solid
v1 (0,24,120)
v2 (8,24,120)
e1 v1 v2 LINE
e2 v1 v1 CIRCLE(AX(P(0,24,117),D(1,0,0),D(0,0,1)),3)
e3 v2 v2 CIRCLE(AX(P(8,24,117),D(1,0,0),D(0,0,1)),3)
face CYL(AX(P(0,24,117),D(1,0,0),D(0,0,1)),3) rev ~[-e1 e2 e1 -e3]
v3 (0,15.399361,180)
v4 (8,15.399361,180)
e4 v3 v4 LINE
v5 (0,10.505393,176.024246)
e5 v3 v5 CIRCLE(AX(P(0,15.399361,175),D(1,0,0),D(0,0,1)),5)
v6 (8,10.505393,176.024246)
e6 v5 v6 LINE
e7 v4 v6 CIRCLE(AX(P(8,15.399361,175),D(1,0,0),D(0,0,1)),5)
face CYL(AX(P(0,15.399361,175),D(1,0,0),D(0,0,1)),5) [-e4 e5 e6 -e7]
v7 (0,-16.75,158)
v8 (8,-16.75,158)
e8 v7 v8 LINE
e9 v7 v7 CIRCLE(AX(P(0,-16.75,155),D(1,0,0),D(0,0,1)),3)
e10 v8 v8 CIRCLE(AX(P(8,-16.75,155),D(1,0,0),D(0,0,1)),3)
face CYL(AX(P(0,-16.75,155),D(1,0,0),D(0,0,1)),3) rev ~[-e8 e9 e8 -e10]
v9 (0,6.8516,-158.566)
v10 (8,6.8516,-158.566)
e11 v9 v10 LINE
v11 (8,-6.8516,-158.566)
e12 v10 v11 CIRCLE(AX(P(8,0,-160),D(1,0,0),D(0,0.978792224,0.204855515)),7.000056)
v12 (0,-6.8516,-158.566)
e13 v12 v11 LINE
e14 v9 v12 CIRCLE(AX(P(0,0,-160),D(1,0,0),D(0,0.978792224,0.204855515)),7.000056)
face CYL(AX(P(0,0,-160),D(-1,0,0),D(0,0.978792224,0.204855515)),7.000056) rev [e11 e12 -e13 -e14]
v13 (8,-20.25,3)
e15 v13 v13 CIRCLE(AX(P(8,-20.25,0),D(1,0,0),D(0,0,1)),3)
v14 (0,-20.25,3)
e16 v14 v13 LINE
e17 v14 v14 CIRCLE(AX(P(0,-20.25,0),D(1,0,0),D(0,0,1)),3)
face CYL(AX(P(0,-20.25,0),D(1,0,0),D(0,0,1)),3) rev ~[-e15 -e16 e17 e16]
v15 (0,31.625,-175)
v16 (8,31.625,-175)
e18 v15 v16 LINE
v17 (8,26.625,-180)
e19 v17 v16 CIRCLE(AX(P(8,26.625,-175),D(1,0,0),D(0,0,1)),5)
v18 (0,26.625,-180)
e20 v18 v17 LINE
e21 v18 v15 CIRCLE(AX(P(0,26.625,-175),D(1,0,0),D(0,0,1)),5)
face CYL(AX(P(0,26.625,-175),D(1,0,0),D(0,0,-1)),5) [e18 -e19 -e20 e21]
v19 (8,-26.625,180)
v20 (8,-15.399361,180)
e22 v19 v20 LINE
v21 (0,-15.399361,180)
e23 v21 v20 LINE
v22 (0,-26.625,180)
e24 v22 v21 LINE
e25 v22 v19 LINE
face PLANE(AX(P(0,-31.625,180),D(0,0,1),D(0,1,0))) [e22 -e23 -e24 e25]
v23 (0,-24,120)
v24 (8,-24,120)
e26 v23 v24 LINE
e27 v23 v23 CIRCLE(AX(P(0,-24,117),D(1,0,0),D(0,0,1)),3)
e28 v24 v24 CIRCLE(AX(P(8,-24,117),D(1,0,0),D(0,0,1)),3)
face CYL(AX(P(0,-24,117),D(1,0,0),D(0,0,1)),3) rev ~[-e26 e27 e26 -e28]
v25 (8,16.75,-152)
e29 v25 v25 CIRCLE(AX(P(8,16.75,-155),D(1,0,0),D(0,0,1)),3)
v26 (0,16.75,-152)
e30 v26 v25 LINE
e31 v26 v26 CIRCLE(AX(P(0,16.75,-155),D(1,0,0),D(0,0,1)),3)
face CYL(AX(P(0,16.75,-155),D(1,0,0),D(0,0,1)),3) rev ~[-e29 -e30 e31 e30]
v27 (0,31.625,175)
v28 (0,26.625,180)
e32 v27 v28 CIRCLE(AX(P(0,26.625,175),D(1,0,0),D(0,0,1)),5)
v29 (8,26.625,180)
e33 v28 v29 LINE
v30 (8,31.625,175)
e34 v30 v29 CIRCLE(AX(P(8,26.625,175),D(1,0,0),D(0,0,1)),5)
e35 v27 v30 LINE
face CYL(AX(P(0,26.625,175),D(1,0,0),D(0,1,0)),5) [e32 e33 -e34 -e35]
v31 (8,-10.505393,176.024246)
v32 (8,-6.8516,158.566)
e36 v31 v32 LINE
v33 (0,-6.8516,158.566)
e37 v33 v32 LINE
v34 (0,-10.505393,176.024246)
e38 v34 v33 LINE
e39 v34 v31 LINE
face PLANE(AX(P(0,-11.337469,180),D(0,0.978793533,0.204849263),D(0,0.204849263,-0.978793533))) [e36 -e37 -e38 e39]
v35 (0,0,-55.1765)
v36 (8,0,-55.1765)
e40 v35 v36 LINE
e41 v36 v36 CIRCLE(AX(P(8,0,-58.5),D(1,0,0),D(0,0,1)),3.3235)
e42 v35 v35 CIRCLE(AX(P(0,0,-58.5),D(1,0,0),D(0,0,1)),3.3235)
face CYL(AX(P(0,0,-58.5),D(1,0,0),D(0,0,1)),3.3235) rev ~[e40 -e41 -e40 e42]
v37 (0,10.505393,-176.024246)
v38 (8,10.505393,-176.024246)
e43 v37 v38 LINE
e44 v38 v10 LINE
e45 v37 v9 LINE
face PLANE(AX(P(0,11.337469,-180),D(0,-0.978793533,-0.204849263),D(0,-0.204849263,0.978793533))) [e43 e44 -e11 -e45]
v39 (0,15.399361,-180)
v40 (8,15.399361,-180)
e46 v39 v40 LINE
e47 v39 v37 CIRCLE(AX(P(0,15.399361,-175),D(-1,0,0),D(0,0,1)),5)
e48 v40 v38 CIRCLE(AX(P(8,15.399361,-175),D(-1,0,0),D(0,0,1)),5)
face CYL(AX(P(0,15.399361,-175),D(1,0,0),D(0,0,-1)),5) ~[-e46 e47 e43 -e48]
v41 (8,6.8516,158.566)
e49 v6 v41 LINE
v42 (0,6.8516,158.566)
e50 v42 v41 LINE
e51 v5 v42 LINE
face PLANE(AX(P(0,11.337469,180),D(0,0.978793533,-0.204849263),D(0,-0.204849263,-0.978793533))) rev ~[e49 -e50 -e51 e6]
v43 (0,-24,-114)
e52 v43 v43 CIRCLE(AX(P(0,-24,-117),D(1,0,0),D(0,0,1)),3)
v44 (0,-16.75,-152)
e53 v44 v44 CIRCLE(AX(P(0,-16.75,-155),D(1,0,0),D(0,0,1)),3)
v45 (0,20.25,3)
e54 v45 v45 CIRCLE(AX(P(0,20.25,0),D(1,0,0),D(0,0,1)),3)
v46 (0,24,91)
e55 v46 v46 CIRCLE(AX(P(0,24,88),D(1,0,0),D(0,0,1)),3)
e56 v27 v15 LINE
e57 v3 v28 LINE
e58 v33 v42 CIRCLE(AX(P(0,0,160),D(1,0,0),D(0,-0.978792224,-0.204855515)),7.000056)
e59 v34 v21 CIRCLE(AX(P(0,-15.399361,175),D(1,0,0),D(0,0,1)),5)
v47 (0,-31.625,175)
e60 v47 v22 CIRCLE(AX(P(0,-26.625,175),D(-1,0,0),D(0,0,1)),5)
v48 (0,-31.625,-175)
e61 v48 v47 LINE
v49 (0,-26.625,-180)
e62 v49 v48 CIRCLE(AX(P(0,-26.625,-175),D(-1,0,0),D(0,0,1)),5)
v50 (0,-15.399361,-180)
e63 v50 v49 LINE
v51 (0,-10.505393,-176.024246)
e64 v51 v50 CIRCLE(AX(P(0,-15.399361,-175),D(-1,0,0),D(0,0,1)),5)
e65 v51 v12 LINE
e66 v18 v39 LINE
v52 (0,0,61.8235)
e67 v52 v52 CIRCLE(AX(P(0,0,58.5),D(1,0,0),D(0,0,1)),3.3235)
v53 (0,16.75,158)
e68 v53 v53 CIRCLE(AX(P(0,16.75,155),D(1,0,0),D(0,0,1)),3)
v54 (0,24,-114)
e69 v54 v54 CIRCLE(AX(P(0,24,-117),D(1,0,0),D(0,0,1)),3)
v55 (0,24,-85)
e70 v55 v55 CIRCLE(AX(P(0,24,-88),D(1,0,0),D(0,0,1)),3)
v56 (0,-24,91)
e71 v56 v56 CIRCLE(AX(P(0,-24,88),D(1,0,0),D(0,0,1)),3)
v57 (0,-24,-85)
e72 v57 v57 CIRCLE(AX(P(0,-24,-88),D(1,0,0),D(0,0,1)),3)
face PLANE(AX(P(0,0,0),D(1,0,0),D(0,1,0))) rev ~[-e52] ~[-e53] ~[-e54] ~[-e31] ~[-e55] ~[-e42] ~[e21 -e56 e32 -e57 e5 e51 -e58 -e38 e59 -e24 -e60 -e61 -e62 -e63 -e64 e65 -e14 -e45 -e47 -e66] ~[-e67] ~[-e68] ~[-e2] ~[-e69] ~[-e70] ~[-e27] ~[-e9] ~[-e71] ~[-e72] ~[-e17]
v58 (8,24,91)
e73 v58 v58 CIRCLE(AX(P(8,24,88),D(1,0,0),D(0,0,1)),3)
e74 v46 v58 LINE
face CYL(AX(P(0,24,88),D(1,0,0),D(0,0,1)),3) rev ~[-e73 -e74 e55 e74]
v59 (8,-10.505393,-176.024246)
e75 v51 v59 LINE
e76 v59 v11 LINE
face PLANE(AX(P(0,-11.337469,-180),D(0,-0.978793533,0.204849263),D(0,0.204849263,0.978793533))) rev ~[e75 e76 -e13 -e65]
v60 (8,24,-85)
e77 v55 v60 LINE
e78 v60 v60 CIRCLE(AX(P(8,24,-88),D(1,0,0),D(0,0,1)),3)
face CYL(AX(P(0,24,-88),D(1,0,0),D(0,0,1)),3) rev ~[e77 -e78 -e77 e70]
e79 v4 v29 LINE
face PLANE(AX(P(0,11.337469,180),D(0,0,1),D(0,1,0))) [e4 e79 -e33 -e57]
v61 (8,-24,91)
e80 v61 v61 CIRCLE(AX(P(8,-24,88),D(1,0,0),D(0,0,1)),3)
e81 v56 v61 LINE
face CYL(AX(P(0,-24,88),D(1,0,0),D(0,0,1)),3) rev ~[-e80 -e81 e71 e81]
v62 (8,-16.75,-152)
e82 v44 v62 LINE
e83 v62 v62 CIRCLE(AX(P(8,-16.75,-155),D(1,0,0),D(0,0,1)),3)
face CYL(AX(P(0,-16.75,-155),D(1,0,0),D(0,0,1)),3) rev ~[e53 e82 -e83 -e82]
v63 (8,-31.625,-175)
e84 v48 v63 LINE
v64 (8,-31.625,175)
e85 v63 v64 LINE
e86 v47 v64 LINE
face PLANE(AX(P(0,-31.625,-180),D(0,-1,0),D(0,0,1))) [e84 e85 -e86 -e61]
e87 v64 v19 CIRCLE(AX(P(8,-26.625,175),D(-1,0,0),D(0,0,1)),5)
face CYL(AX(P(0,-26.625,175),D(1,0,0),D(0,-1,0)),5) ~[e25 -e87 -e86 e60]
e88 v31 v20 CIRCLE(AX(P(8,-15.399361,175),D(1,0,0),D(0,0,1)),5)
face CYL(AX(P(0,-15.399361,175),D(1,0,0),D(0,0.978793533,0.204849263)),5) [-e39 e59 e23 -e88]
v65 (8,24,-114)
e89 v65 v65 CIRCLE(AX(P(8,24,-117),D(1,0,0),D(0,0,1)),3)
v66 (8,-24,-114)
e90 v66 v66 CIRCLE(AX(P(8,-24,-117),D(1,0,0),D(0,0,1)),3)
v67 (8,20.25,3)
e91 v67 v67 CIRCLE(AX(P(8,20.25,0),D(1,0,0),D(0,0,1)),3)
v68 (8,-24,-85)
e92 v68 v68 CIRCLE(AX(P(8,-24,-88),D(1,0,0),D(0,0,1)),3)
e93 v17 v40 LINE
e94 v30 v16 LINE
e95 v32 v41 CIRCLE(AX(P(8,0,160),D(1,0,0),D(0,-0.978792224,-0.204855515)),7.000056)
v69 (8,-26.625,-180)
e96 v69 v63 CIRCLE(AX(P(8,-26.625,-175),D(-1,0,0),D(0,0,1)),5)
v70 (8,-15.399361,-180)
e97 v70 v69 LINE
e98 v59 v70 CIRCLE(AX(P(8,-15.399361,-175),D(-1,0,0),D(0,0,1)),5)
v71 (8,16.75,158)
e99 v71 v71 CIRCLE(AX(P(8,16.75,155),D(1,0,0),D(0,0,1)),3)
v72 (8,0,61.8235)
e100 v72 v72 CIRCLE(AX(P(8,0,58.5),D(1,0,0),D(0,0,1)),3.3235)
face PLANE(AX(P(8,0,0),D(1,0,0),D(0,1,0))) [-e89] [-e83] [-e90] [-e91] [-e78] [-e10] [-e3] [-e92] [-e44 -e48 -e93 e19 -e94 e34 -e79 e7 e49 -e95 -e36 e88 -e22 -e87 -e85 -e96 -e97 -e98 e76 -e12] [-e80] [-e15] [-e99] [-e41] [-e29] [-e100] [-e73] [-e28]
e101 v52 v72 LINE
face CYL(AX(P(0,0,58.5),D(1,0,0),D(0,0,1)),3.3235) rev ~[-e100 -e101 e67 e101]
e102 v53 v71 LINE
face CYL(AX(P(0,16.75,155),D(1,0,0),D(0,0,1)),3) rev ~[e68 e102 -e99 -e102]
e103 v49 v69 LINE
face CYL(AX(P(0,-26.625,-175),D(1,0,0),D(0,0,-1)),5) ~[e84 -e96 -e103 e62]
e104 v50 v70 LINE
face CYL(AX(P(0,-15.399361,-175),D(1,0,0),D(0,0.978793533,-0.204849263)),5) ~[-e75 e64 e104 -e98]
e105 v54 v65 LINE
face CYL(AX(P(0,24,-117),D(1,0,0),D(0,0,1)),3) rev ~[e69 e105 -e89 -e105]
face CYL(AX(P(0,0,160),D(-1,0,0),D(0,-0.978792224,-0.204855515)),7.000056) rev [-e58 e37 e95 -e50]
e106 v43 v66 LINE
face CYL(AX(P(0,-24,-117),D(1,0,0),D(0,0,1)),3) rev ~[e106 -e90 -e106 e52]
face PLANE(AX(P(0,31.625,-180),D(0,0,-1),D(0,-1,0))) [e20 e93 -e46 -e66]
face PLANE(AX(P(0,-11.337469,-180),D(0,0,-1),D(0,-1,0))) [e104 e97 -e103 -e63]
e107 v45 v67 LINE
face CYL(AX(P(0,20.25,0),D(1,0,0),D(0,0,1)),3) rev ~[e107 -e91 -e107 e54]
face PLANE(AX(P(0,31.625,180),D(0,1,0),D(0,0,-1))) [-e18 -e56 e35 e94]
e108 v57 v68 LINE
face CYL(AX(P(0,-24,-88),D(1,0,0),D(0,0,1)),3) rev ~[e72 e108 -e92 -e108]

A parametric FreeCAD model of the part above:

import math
import FreeCAD as App
import Part
import Sketcher
from FreeCAD import Vector
Q = App.Units.Quantity


def edges_at(feature, points):
    """Names of the edges that pass closest to the given points."""
    edges = feature.Shape.Edges
    near = lambda p: min(range(len(edges)), key=lambda i: edges[i].distToShape(Part.Vertex(*p))[0])
    return sorted({f"Edge{near(p) + 1}" for p in points})

doc = App.newDocument("Part")
body = doc.addObject("PartDesign::Body", "Body")

# Sketch on YZ plane
sketch1 = body.newObject("Sketcher::SketchObject", "Sketch")
sketch1.AttachmentSupport = (doc.getObject("YZ_Plane"), [""])
sketch1.MapMode = "FlatFace"
sketch1.addGeometry([
    Part.LineSegment(Vector(11.337469, -180, 0), Vector(31.625, -180, 0)),  # 0
    Part.LineSegment(Vector(31.625, -180, 0), Vector(31.625, 180, 0)),  # 1
    Part.LineSegment(Vector(31.625, 180, 0), Vector(11.337469, 180, 0)),  # 2
    Part.LineSegment(Vector(11.337469, 180, 0), Vector(6.8516, 158.566, 0)),  # 3
    Part.ArcOfCircle(Part.Circle(Vector(0, 160, 0), Vector(0, 0, 1), 7.000056), math.radians(-168.178959), math.radians(-11.821041)),  # 4
    Part.LineSegment(Vector(-6.8516, 158.566, 0), Vector(-11.337469, 180, 0)),  # 5
    Part.LineSegment(Vector(-11.337469, 180, 0), Vector(-31.625, 180, 0)),  # 6
    Part.LineSegment(Vector(-31.625, 180, 0), Vector(-31.625, -180, 0)),  # 7
    Part.LineSegment(Vector(-31.625, -180, 0), Vector(-11.337469, -180, 0)),  # 8
    Part.LineSegment(Vector(-11.337469, -180, 0), Vector(-6.8516, -158.566, 0)),  # 9
    Part.ArcOfCircle(Part.Circle(Vector(0, -160, 0), Vector(0, 0, 1), 7.000056), math.radians(11.821041), math.radians(168.178959)),  # 10
    Part.LineSegment(Vector(6.8516, -158.566, 0), Vector(11.337469, -180, 0)),  # 11
], False)
sketch1.addConstraint([
    Sketcher.Constraint("Coincident", 0, 2, 1, 1),
    Sketcher.Constraint("Coincident", 1, 2, 2, 1),
    Sketcher.Constraint("Coincident", 2, 2, 3, 1),
    Sketcher.Constraint("Tangent", 3, 2, 4, 2),
    Sketcher.Constraint("Tangent", 4, 1, 5, 1),
    Sketcher.Constraint("Coincident", 5, 2, 6, 1),
    Sketcher.Constraint("Coincident", 6, 2, 7, 1),
    Sketcher.Constraint("Coincident", 7, 2, 8, 1),
    Sketcher.Constraint("Coincident", 8, 2, 9, 1),
    Sketcher.Constraint("Tangent", 9, 2, 10, 2),
    Sketcher.Constraint("Tangent", 10, 1, 11, 1),
    Sketcher.Constraint("Coincident", 11, 2, 0, 1),
    Sketcher.Constraint("Horizontal", 0),
    Sketcher.Constraint("Vertical", 1),
    Sketcher.Constraint("Horizontal", 2),
    Sketcher.Constraint("Horizontal", 6),
    Sketcher.Constraint("Vertical", 7),
    Sketcher.Constraint("Horizontal", 8),
    Sketcher.Constraint("Equal", 4, 10),
    Sketcher.Constraint("Symmetric", 4, 3, 10, 3, -1, 1),
    Sketcher.Constraint("Symmetric", 0, 2, 6, 2, -1, 1),
    Sketcher.Constraint("Symmetric", 2, 2, 8, 2, -1, 1),
    Sketcher.Constraint("Symmetric", 3, 2, 4, 1, -2),
    Sketcher.Constraint("Symmetric", 8, 2, 11, 2, -2),
    Sketcher.Constraint("Radius", 4, Q("7 mm")),
    Sketcher.Constraint("DistanceY", 1, 1, 1, 2, Q("360 mm")),
    Sketcher.Constraint("DistanceY", 10, 3, 4, 3, Q("320 mm")),
    Sketcher.Constraint("DistanceX", 7, 2, 0, 2, Q("63.25 mm")),
    Sketcher.Constraint("Angle", 3, Q("-101.8207 deg")),
])
pad1 = body.newObject("PartDesign::Pad", "Pad")
pad1.Profile = sketch1
pad1.Length = 8

# Sketch on YZ plane
sketch2 = body.newObject("Sketcher::SketchObject", "Sketch001")
sketch2.AttachmentSupport = (doc.getObject("YZ_Plane"), [""])
sketch2.MapMode = "FlatFace"
sketch2.addGeometry([
    Part.Circle(Vector(-20.25, 0, 0), Vector(0, 0, 1), 3),  # 0
    Part.Circle(Vector(20.25, 0, 0), Vector(0, 0, 1), 3),  # 1
    Part.Circle(Vector(24, -88, 0), Vector(0, 0, 1), 3),  # 2
    Part.Circle(Vector(24, -117, 0), Vector(0, 0, 1), 3),  # 3
    Part.Circle(Vector(16.75, -155, 0), Vector(0, 0, 1), 3),  # 4
    Part.Circle(Vector(-24, -88, 0), Vector(0, 0, 1), 3),  # 5
    Part.Circle(Vector(-24, -117, 0), Vector(0, 0, 1), 3),  # 6
    Part.Circle(Vector(-16.75, -155, 0), Vector(0, 0, 1), 3),  # 7
    Part.Circle(Vector(24, 88, 0), Vector(0, 0, 1), 3),  # 8
    Part.Circle(Vector(24, 117, 0), Vector(0, 0, 1), 3),  # 9
    Part.Circle(Vector(16.75, 155, 0), Vector(0, 0, 1), 3),  # 10
    Part.Circle(Vector(-16.75, 155, 0), Vector(0, 0, 1), 3),  # 11
    Part.Circle(Vector(-24, 117, 0), Vector(0, 0, 1), 3),  # 12
    Part.Circle(Vector(-24, 88, 0), Vector(0, 0, 1), 3),  # 13
    Part.Circle(Vector(0, 160, 0), Vector(0, 0, 1), 3),  # 14
    Part.Circle(Vector(0, -160, 0), Vector(0, 0, 1), 3),  # 15
], False)
sketch2.addConstraint([
    Sketcher.Constraint("Equal", 0, 1),
    Sketcher.Constraint("Equal", 1, 2),
    Sketcher.Constraint("Equal", 2, 3),
    Sketcher.Constraint("Equal", 3, 4),
    Sketcher.Constraint("Equal", 4, 5),
    Sketcher.Constraint("Equal", 5, 6),
    Sketcher.Constraint("Equal", 6, 7),
    Sketcher.Constraint("Equal", 7, 8),
    Sketcher.Constraint("Equal", 8, 9),
    Sketcher.Constraint("Equal", 9, 10),
    Sketcher.Constraint("Equal", 10, 11),
    Sketcher.Constraint("Equal", 11, 12),
    Sketcher.Constraint("Equal", 12, 13),
    Sketcher.Constraint("Equal", 13, 14),
    Sketcher.Constraint("Equal", 14, 15),
    Sketcher.Constraint("Symmetric", 0, 3, 1, 3, -1, 1),
    Sketcher.Constraint("Symmetric", 5, 3, 8, 3, -1, 1),
    Sketcher.Constraint("Symmetric", 6, 3, 9, 3, -1, 1),
    Sketcher.Constraint("Symmetric", 7, 3, 10, 3, -1, 1),
    Sketcher.Constraint("Symmetric", 4, 3, 11, 3, -1, 1),
    Sketcher.Constraint("Symmetric", 3, 3, 12, 3, -1, 1),
    Sketcher.Constraint("Symmetric", 2, 3, 13, 3, -1, 1),
    Sketcher.Constraint("Symmetric", 14, 3, 15, 3, -1, 1),
    Sketcher.Constraint("Symmetric", 2, 3, 5, 3, -2),
    Sketcher.Constraint("Symmetric", 3, 3, 6, 3, -2),
    Sketcher.Constraint("Symmetric", 4, 3, 7, 3, -2),
    Sketcher.Constraint("PointOnObject", 0, 3, -1),
    Sketcher.Constraint("PointOnObject", 14, 3, -2),
    Sketcher.Constraint("Vertical", 2, 3, 3, 3),
    Sketcher.Constraint("Diameter", 0, Q("6 mm")),
    Sketcher.Constraint("DistanceX", -1, 1, 2, 3, Q("24 mm")),
    Sketcher.Constraint("DistanceY", 2, 3, -1, 1, Q("88 mm")),
    Sketcher.Constraint("DistanceY", 3, 3, -1, 1, Q("117 mm")),
    Sketcher.Constraint("DistanceY", 4, 3, -1, 1, Q("155 mm")),
    Sketcher.Constraint("DistanceY", -1, 1, 14, 3, Q("160 mm")),
    Sketcher.Constraint("DistanceX", 0, 3, 4, 3, Q("37 mm")),
    Sketcher.Constraint("DistanceX", 0, 3, 1, 3, Q("40.5 mm")),
])
doc.recompute()
hole = body.newObject("PartDesign::Hole", "Hole")
hole.Profile = sketch2
hole.ThreadType = "None"
hole.Diameter = 6
hole.DepthType = "ThroughAll"
hole.Reversed = True

# Sketch on YZ plane
sketch3 = body.newObject("Sketcher::SketchObject", "Sketch002")
sketch3.AttachmentSupport = (doc.getObject("YZ_Plane"), [""])
sketch3.MapMode = "FlatFace"
sketch3.addGeometry([
    Part.Circle(Vector(0, 58.5, 0), Vector(0, 0, 1), 3.3235),
    Part.Circle(Vector(0, -58.5, 0), Vector(0, 0, 1), 3.3235),
], False)
sketch3.addConstraint([
    Sketcher.Constraint("Equal", 0, 1),
    Sketcher.Constraint("Symmetric", 0, 3, 1, 3, -1, 1),
    Sketcher.Constraint("PointOnObject", 0, 3, -2),
    Sketcher.Constraint("Diameter", 0, Q("6.647 mm")),
    Sketcher.Constraint("DistanceY", 1, 3, 0, 3, Q("117 mm")),
])
doc.recompute()
hole2 = body.newObject("PartDesign::Hole", "Hole001")
hole2.Profile = sketch3
hole2.ThreadType = "None"
hole2.Diameter = 6.647
hole2.DepthType = "ThroughAll"
hole2.Reversed = True
doc.recompute()

fillet = body.newObject("PartDesign::Fillet", "Fillet")
fillet.Base = (hole2, edges_at(hole2, [
    (4, 31.625, 180),
    (4, -31.625, 180),
    (4, 31.625, -180),
    (4, 11.337, -180),
    (4, -11.337, -180),
    (4, -31.625, -180),
    (4, -11.337, 180),
    (4, 11.337, 180),
]))
fillet.Radius = 5

doc.recompute()
